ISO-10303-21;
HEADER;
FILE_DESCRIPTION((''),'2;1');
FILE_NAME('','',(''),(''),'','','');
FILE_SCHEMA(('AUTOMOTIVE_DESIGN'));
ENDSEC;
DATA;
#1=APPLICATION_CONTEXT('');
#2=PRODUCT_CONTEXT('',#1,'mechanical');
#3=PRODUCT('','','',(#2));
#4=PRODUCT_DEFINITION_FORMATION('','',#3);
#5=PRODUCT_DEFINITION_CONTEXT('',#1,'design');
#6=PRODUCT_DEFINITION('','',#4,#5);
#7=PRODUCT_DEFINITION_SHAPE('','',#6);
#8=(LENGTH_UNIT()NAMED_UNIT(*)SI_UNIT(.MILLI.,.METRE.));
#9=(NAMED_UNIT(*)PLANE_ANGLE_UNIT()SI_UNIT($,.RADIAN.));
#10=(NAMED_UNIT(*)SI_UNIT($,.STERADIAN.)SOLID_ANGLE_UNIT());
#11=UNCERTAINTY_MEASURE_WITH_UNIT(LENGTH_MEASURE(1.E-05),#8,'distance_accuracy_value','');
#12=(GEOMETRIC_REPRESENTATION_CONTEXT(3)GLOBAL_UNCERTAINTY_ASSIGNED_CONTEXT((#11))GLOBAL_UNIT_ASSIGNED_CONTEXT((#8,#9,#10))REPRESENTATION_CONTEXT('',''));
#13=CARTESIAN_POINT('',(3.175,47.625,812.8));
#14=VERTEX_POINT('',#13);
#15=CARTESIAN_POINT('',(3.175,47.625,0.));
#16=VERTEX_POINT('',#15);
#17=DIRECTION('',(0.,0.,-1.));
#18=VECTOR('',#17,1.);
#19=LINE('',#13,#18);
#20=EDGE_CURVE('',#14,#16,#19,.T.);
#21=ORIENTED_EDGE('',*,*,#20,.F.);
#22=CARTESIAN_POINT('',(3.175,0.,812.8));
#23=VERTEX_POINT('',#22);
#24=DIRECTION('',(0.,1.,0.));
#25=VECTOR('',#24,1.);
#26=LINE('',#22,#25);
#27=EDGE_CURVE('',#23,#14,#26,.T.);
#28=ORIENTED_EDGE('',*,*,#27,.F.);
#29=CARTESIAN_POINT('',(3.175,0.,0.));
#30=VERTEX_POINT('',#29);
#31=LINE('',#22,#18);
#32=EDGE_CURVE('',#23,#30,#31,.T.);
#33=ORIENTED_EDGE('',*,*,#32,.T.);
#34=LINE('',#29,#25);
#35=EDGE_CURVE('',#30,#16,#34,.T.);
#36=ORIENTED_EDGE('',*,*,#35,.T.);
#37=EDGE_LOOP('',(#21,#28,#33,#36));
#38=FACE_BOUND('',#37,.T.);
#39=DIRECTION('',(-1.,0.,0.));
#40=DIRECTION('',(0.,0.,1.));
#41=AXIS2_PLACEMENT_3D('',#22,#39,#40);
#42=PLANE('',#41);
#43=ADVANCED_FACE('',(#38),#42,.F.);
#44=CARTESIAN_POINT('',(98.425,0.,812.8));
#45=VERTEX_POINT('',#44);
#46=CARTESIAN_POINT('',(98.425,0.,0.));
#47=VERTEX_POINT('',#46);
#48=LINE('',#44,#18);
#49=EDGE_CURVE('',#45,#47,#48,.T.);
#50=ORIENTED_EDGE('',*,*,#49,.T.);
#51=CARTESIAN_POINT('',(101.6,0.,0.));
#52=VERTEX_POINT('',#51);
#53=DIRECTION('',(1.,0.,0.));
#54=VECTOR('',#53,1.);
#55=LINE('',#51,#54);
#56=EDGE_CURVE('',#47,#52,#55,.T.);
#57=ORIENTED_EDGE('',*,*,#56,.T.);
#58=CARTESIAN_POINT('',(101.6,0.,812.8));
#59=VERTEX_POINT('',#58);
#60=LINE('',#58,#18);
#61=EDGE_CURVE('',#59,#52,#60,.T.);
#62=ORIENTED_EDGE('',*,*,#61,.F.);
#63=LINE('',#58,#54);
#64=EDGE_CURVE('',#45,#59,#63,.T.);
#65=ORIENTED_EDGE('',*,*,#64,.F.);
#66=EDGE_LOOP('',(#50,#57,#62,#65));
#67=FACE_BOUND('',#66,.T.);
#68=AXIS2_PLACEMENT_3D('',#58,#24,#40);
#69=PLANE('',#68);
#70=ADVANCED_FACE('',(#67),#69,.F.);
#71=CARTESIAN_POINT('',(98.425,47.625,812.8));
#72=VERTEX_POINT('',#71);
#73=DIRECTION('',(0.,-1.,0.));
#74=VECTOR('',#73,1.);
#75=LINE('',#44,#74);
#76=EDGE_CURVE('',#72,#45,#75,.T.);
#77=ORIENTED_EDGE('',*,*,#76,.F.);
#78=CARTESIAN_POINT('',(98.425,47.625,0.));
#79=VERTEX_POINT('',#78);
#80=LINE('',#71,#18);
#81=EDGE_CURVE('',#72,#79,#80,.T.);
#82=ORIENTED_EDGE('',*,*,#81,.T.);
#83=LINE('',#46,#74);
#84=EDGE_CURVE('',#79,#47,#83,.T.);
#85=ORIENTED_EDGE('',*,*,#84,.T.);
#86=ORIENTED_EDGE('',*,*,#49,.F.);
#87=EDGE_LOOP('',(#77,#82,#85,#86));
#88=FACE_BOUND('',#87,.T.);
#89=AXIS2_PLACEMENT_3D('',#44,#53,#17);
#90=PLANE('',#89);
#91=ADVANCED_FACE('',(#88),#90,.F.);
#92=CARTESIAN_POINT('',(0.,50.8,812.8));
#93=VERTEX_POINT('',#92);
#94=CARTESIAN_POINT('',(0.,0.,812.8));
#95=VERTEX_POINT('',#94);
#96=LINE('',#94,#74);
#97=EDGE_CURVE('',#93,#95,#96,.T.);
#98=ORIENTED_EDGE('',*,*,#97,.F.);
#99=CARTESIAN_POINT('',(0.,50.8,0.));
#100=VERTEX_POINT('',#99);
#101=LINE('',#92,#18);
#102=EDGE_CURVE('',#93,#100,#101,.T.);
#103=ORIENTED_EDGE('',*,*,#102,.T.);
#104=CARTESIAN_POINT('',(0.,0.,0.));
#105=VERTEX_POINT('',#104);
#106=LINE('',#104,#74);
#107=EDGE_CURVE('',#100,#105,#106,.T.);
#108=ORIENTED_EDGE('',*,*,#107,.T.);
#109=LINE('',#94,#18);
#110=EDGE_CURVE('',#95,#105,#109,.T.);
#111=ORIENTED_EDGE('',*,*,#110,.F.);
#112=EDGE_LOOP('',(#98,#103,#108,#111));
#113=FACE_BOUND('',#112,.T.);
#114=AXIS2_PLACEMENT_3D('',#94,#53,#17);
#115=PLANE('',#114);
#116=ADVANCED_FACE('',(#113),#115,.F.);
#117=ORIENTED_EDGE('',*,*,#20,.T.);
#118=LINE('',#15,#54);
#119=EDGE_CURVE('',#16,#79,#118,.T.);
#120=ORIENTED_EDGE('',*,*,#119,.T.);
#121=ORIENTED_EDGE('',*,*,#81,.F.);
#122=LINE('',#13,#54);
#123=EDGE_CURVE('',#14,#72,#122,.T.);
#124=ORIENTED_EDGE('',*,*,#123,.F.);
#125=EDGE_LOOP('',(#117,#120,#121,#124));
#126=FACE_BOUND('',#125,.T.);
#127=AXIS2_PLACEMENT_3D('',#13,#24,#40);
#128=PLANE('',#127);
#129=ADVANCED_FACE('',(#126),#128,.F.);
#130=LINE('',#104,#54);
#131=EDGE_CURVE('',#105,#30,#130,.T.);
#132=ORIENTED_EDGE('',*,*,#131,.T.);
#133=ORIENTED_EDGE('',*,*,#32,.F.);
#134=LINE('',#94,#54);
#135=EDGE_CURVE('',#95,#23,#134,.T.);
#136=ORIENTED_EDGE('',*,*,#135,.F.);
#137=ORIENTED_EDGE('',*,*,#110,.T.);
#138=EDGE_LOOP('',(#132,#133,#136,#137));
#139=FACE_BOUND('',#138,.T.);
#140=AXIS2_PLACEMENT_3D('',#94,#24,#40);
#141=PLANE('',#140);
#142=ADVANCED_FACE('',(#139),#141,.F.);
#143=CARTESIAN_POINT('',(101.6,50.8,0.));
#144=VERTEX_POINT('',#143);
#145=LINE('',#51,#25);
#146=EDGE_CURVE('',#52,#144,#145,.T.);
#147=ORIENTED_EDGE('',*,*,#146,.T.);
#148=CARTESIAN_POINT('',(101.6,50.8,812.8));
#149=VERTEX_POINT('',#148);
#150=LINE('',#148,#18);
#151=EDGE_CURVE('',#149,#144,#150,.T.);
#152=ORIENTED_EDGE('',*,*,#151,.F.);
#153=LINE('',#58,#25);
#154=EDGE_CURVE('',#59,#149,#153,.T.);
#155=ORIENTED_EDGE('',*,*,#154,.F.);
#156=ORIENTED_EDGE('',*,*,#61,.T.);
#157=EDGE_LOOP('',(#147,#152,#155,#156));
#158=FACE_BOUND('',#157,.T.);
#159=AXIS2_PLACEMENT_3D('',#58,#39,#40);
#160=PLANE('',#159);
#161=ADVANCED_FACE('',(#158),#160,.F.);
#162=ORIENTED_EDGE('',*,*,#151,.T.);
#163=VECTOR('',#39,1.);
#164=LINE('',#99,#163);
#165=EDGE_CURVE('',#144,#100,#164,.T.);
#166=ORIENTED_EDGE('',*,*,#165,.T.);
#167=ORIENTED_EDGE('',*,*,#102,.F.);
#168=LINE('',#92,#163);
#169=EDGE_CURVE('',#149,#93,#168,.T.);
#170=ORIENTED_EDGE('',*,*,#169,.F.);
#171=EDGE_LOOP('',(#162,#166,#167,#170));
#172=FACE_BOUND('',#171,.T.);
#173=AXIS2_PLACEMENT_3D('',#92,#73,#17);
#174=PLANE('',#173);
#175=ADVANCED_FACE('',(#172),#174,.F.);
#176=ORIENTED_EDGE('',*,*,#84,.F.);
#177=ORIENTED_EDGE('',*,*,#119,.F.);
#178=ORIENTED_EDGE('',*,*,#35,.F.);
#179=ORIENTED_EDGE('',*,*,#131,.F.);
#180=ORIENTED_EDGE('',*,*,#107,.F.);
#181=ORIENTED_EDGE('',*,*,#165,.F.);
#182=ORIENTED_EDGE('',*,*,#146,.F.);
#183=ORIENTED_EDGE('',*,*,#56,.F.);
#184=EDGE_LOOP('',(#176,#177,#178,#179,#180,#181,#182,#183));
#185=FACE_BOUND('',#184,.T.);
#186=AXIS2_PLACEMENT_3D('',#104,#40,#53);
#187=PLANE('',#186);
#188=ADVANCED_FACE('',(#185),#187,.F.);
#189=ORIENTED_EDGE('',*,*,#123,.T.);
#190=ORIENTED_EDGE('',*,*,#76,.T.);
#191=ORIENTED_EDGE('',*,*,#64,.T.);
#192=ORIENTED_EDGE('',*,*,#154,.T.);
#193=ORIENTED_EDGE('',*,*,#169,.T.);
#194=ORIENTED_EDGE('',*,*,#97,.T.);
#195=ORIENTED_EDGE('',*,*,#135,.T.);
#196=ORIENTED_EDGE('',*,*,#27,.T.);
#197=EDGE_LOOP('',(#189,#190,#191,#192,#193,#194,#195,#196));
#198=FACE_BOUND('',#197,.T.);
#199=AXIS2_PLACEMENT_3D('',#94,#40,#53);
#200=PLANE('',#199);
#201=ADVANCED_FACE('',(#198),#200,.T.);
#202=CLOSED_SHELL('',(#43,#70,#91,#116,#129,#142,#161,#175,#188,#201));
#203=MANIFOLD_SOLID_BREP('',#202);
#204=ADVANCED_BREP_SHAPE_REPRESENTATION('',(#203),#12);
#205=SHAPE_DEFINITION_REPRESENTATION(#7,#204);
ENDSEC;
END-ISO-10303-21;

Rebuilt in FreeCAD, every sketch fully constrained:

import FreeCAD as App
import Part
import Sketcher

V = App.Vector
Q = App.Units.Quantity


def add_polygon(sketch, points):
    """Adds a closed chain of lines whose ends are joined by coincident constraints."""
    first, n = sketch.GeometryCount, len(points)
    for a, b in zip(points, points[1:] + points[:1]):
        sketch.addGeometry(Part.LineSegment(App.Vector(*a, 0), App.Vector(*b, 0)), False)
    for i in range(n):
        sketch.addConstraint(Sketcher.Constraint("Coincident", first + i, 2, first + (i + 1) % n, 1))

doc = App.newDocument("Part")
params = doc.addObject("Spreadsheet::Sheet", "Params")
for row, (alias, value) in enumerate([
    ("sketch1_width", "4 in"),
    ("sketch1_height", "2 in"),
    ("sketch1_width2", "3.75 in"),
    ("sketch1_height2", "1.875 in"),
    ("pad1_length", "32 in"),
], start=1):
    params.set(f"A{row}", alias)
    params.set(f"B{row}", "=" + value)
    params.setAlias(f"B{row}", alias)

body = doc.addObject("PartDesign::Body", "Body")

# Sketch on XY plane
sketch1 = body.newObject("Sketcher::SketchObject", "Sketch")
sketch1.AttachmentSupport = (doc.getObject("XY_Plane"), [""])
sketch1.MapMode = "FlatFace"
add_polygon(sketch1, [(3.175, 0), (3.175, 47.625), (98.425, 47.625), (98.425, 0), (101.6, 0), (101.6, 50.8), (0, 50.8), (0, 0)])  # lines 0-7
sketch1.addConstraint(Sketcher.Constraint("Vertical", 0))
sketch1.addConstraint(Sketcher.Constraint("Horizontal", 1))
sketch1.addConstraint(Sketcher.Constraint("Vertical", 2))
sketch1.addConstraint(Sketcher.Constraint("Horizontal", 3))
sketch1.addConstraint(Sketcher.Constraint("Vertical", 4))
sketch1.addConstraint(Sketcher.Constraint("Horizontal", 5))
sketch1.addConstraint(Sketcher.Constraint("Vertical", 6))
sketch1.addConstraint(Sketcher.Constraint("Horizontal", 7))
sketch1.addConstraint(Sketcher.Constraint("Coincident", 6, 2, -1, 1))
sketch1.addConstraint(Sketcher.Constraint("PointOnObject", 2, 2, -1))
sketch1.addConstraint(Sketcher.Constraint("Equal", 3, 7))
sketch1.addConstraint(Sketcher.Constraint("DistanceX", 5, 2, 5, 1, Q("4 in")))
sketch1.addConstraint(Sketcher.Constraint("DistanceY", 4, 1, 4, 2, Q("2 in")))
sketch1.addConstraint(Sketcher.Constraint("DistanceX", 1, 1, 1, 2, Q("3.75 in")))
sketch1.addConstraint(Sketcher.Constraint("DistanceY", 0, 1, 0, 2, Q("1.875 in")))
sketch1.setExpression("Constraints[19]", "Params.sketch1_width")
sketch1.setExpression("Constraints[20]", "Params.sketch1_height")
sketch1.setExpression("Constraints[21]", "Params.sketch1_width2")
sketch1.setExpression("Constraints[22]", "Params.sketch1_height2")
pad1 = body.newObject("PartDesign::Pad", "Pad")
pad1.Profile = sketch1
pad1.setExpression("Length", "Params.pad1_length")

doc.recompute()
